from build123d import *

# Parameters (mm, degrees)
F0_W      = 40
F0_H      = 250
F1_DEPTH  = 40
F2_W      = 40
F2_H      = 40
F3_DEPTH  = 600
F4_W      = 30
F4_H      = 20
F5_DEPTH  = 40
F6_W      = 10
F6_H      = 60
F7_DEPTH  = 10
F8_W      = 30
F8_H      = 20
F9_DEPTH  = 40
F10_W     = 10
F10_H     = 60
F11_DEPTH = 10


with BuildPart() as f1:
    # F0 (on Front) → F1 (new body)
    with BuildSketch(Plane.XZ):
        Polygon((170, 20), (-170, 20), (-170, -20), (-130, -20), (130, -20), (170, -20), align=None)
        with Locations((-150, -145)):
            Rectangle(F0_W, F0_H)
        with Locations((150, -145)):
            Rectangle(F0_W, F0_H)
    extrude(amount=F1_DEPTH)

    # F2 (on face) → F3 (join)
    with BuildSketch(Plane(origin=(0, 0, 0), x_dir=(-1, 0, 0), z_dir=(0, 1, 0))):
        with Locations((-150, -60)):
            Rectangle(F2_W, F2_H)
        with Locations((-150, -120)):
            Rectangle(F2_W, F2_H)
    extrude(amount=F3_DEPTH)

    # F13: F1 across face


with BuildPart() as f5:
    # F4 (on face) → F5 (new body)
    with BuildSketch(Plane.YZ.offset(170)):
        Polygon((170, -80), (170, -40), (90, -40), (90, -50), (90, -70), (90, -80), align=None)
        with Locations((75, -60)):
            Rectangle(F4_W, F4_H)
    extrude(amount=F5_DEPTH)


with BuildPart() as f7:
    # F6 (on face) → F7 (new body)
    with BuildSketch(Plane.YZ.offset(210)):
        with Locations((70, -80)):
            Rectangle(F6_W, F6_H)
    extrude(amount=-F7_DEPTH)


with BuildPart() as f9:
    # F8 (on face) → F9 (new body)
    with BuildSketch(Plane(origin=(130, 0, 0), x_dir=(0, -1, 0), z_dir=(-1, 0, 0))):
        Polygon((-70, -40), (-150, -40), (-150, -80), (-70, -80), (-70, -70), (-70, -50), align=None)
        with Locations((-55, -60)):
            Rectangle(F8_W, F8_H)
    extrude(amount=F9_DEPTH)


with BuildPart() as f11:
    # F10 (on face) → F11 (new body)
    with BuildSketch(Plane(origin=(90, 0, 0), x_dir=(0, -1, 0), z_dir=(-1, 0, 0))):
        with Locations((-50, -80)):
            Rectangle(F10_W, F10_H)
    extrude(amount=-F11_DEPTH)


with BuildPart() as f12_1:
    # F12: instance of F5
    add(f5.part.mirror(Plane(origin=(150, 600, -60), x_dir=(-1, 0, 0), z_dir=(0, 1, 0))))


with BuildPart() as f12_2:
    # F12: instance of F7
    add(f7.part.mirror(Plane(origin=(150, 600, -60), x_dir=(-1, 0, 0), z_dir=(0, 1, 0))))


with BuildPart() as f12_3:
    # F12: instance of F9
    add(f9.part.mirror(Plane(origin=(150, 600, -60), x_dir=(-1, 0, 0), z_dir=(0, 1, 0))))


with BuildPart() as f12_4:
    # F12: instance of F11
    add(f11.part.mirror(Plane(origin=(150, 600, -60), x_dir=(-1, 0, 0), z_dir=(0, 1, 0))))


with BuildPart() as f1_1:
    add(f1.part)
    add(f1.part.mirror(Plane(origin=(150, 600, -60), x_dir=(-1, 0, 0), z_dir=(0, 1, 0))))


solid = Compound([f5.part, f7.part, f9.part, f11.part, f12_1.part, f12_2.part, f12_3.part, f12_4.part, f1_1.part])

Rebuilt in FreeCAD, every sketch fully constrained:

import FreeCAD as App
import Part
import Sketcher
from FreeCAD import Vector
Q = App.Units.Quantity

doc = App.newDocument("Part")
body = doc.addObject("PartDesign::Body", "Body")

sketch1 = body.newObject("Sketcher::SketchObject", "Sketch")
sketch1.AttachmentSupport = (doc.getObject("XZ_Plane"), [""])
sketch1.MapMode = "FlatFace"
sketch1.addGeometry([
    Part.LineSegment(Vector(170, 20, 0), Vector(-170, 20, 0)),
    Part.LineSegment(Vector(-170, 20, 0), Vector(-170, -270, 0)),
    Part.LineSegment(Vector(-170, -270, 0), Vector(-130, -270, 0)),
    Part.LineSegment(Vector(-130, -270, 0), Vector(-130, -20, 0)),
    Part.LineSegment(Vector(-130, -20, 0), Vector(130, -20, 0)),
    Part.LineSegment(Vector(130, -20, 0), Vector(130, -270, 0)),
    Part.LineSegment(Vector(130, -270, 0), Vector(170, -270, 0)),
    Part.LineSegment(Vector(170, -270, 0), Vector(170, 20, 0)),
], False)
sketch1.addConstraint([
    Sketcher.Constraint("Coincident", 0, 2, 1, 1),
    Sketcher.Constraint("Coincident", 1, 2, 2, 1),
    Sketcher.Constraint("Coincident", 2, 2, 3, 1),
    Sketcher.Constraint("Coincident", 3, 2, 4, 1),
    Sketcher.Constraint("Coincident", 4, 2, 5, 1),
    Sketcher.Constraint("Coincident", 5, 2, 6, 1),
    Sketcher.Constraint("Coincident", 6, 2, 7, 1),
    Sketcher.Constraint("Coincident", 7, 2, 0, 1),
    Sketcher.Constraint("Horizontal", 0),
    Sketcher.Constraint("Vertical", 1),
    Sketcher.Constraint("Horizontal", 2),
    Sketcher.Constraint("Vertical", 3),
    Sketcher.Constraint("Horizontal", 4),
    Sketcher.Constraint("Vertical", 5),
    Sketcher.Constraint("Horizontal", 6),
    Sketcher.Constraint("Vertical", 7),
    Sketcher.Constraint("Symmetric", 2, 2, 5, 2, -2),
    Sketcher.Constraint("Equal", 2, 6),
    Sketcher.Constraint("DistanceX", 0, 2, 0, 1, Q("340 mm")),
    Sketcher.Constraint("DistanceX", 2, 1, 2, 2, Q("40 mm")),
    Sketcher.Constraint("DistanceY", 1, 2, 1, 1, Q("290 mm")),
    Sketcher.Constraint("DistanceY", 3, 1, 3, 2, Q("250 mm")),
    Sketcher.Constraint("DistanceY", -1, 1, 0, 2, Q("20 mm")),
])
pad1 = body.newObject("PartDesign::Pad", "Pad")
pad1.Profile = sketch1
pad1.Length = 40

sketch2 = body.newObject("Sketcher::SketchObject", "Sketch001")
sketch2.AttachmentSupport = (doc.getObject("XZ_Plane"), [""])
sketch2.MapMode = "FlatFace"
sketch2.addGeometry([
    Part.LineSegment(Vector(170, -40, 0), Vector(170, -80, 0)),
    Part.LineSegment(Vector(170, -80, 0), Vector(130, -80, 0)),
    Part.LineSegment(Vector(130, -80, 0), Vector(130, -40, 0)),
    Part.LineSegment(Vector(130, -40, 0), Vector(170, -40, 0)),
    Part.LineSegment(Vector(170, -100, 0), Vector(170, -140, 0)),
    Part.LineSegment(Vector(170, -140, 0), Vector(130, -140, 0)),
    Part.LineSegment(Vector(130, -140, 0), Vector(130, -100, 0)),
    Part.LineSegment(Vector(130, -100, 0), Vector(170, -100, 0)),
], False)
sketch2.addConstraint([
    Sketcher.Constraint("Coincident", 0, 2, 1, 1),
    Sketcher.Constraint("Coincident", 1, 2, 2, 1),
    Sketcher.Constraint("Coincident", 2, 2, 3, 1),
    Sketcher.Constraint("Coincident", 3, 2, 0, 1),
    Sketcher.Constraint("Coincident", 4, 2, 5, 1),
    Sketcher.Constraint("Coincident", 5, 2, 6, 1),
    Sketcher.Constraint("Coincident", 6, 2, 7, 1),
    Sketcher.Constraint("Coincident", 7, 2, 4, 1),
    Sketcher.Constraint("Vertical", 0),
    Sketcher.Constraint("Horizontal", 1),
    Sketcher.Constraint("Vertical", 2),
    Sketcher.Constraint("Horizontal", 3),
    Sketcher.Constraint("Vertical", 4),
    Sketcher.Constraint("Horizontal", 5),
    Sketcher.Constraint("Vertical", 6),
    Sketcher.Constraint("Horizontal", 7),
    Sketcher.Constraint("Vertical", 3, 2, 4, 2),
    Sketcher.Constraint("Vertical", 2, 2, 5, 2),
    Sketcher.Constraint("Equal", 7, 0),
    Sketcher.Constraint("Equal", 2, 4),
    Sketcher.Constraint("DistanceX", 1, 2, 1, 1, Q("40 mm")),
    Sketcher.Constraint("DistanceX", -1, 1, 0, 2, Q("170 mm")),
    Sketcher.Constraint("DistanceY", 0, 2, -1, 1, Q("80 mm")),
    Sketcher.Constraint("DistanceY", 4, 2, -1, 1, Q("140 mm")),
])
pad2 = body.newObject("PartDesign::Pad", "Pad001")
pad2.Profile = sketch2
pad2.Length = 600
pad2.Reversed = True
body2 = doc.addObject("PartDesign::Body", "Body001")

sketch3 = body2.newObject("Sketcher::SketchObject", "Sketch002")
sketch3.AttachmentSupport = (doc.getObject("YZ_Plane001"), [""])
sketch3.MapMode = "FlatFace"
sketch3.AttachmentOffset = App.Placement(Vector(0, 0, 170), App.Rotation())
sketch3.addGeometry([
    Part.LineSegment(Vector(170, -80, 0), Vector(170, -40, 0)),
    Part.LineSegment(Vector(170, -40, 0), Vector(90, -40, 0)),
    Part.LineSegment(Vector(90, -40, 0), Vector(90, -50, 0)),
    Part.LineSegment(Vector(90, -50, 0), Vector(60, -50, 0)),
    Part.LineSegment(Vector(60, -50, 0), Vector(60, -70, 0)),
    Part.LineSegment(Vector(60, -70, 0), Vector(90, -70, 0)),
    Part.LineSegment(Vector(90, -70, 0), Vector(90, -80, 0)),
    Part.LineSegment(Vector(90, -80, 0), Vector(170, -80, 0)),
], False)
sketch3.addConstraint([
    Sketcher.Constraint("Coincident", 0, 2, 1, 1),
    Sketcher.Constraint("Coincident", 1, 2, 2, 1),
    Sketcher.Constraint("Coincident", 2, 2, 3, 1),
    Sketcher.Constraint("Coincident", 3, 2, 4, 1),
    Sketcher.Constraint("Coincident", 4, 2, 5, 1),
    Sketcher.Constraint("Coincident", 5, 2, 6, 1),
    Sketcher.Constraint("Coincident", 6, 2, 7, 1),
    Sketcher.Constraint("Coincident", 7, 2, 0, 1),
    Sketcher.Constraint("Vertical", 0),
    Sketcher.Constraint("Horizontal", 1),
    Sketcher.Constraint("Vertical", 2),
    Sketcher.Constraint("Horizontal", 3),
    Sketcher.Constraint("Vertical", 4),
    Sketcher.Constraint("Horizontal", 5),
    Sketcher.Constraint("Vertical", 6),
    Sketcher.Constraint("Horizontal", 7),
    Sketcher.Constraint("Vertical", 2, 2, 5, 2),
    Sketcher.Constraint("Equal", 2, 6),
    Sketcher.Constraint("DistanceX", 1, 2, 1, 1, Q("80 mm")),
    Sketcher.Constraint("DistanceX", 3, 2, 3, 1, Q("30 mm")),
    Sketcher.Constraint("DistanceY", 0, 1, 0, 2, Q("40 mm")),
    Sketcher.Constraint("DistanceY", 2, 2, 2, 1, Q("10 mm")),
    Sketcher.Constraint("DistanceX", -1, 1, 0, 2, Q("170 mm")),
    Sketcher.Constraint("DistanceY", 0, 2, -1, 1, Q("40 mm")),
])
pad3 = body2.newObject("PartDesign::Pad", "Pad002")
pad3.Profile = sketch3
pad3.Length = 40
body3 = doc.addObject("PartDesign::Body", "Body002")

sketch4 = body3.newObject("Sketcher::SketchObject", "Sketch003")
sketch4.AttachmentSupport = (doc.getObject("YZ_Plane002"), [""])
sketch4.MapMode = "FlatFace"
sketch4.AttachmentOffset = App.Placement(Vector(0, 0, 210), App.Rotation())
sketch4.addGeometry([
    Part.LineSegment(Vector(65, -50, 0), Vector(65, -110, 0)),
    Part.LineSegment(Vector(65, -110, 0), Vector(75, -110, 0)),
    Part.LineSegment(Vector(75, -110, 0), Vector(75, -50, 0)),
    Part.LineSegment(Vector(75, -50, 0), Vector(65, -50, 0)),
], False)
sketch4.addConstraint([
    Sketcher.Constraint("Coincident", 0, 2, 1, 1),
    Sketcher.Constraint("Coincident", 1, 2, 2, 1),
    Sketcher.Constraint("Coincident", 2, 2, 3, 1),
    Sketcher.Constraint("Coincident", 3, 2, 0, 1),
    Sketcher.Constraint("Vertical", 0),
    Sketcher.Constraint("Horizontal", 1),
    Sketcher.Constraint("Vertical", 2),
    Sketcher.Constraint("Horizontal", 3),
    Sketcher.Constraint("DistanceX", 1, 1, 1, 2, Q("10 mm")),
    Sketcher.Constraint("DistanceY", 0, 2, 0, 1, Q("60 mm")),
    Sketcher.Constraint("DistanceX", -1, 1, 0, 2, Q("65 mm")),
    Sketcher.Constraint("DistanceY", 0, 2, -1, 1, Q("110 mm")),
])
pad4 = body3.newObject("PartDesign::Pad", "Pad003")
pad4.Profile = sketch4
pad4.Length = 10
pad4.Reversed = True
body4 = doc.addObject("PartDesign::Body", "Body003")

sketch5 = body4.newObject("Sketcher::SketchObject", "Sketch004")
sketch5.AttachmentSupport = (doc.getObject("YZ_Plane003"), [""])
sketch5.MapMode = "FlatFace"
sketch5.AttachmentOffset = App.Placement(Vector(0, 0, 130), App.Rotation())
sketch5.addGeometry([
    Part.LineSegment(Vector(70, -40, 0), Vector(150, -40, 0)),
    Part.LineSegment(Vector(150, -40, 0), Vector(150, -80, 0)),
    Part.LineSegment(Vector(150, -80, 0), Vector(70, -80, 0)),
    Part.LineSegment(Vector(70, -80, 0), Vector(70, -70, 0)),
    Part.LineSegment(Vector(70, -70, 0), Vector(40, -70, 0)),
    Part.LineSegment(Vector(40, -70, 0), Vector(40, -50, 0)),
    Part.LineSegment(Vector(40, -50, 0), Vector(70, -50, 0)),
    Part.LineSegment(Vector(70, -50, 0), Vector(70, -40, 0)),
], False)
sketch5.addConstraint([
    Sketcher.Constraint("Coincident", 0, 2, 1, 1),
    Sketcher.Constraint("Coincident", 1, 2, 2, 1),
    Sketcher.Constraint("Coincident", 2, 2, 3, 1),
    Sketcher.Constraint("Coincident", 3, 2, 4, 1),
    Sketcher.Constraint("Coincident", 4, 2, 5, 1),
    Sketcher.Constraint("Coincident", 5, 2, 6, 1),
    Sketcher.Constraint("Coincident", 6, 2, 7, 1),
    Sketcher.Constraint("Coincident", 7, 2, 0, 1),
    Sketcher.Constraint("Horizontal", 0),
    Sketcher.Constraint("Vertical", 1),
    Sketcher.Constraint("Horizontal", 2),
    Sketcher.Constraint("Vertical", 3),
    Sketcher.Constraint("Horizontal", 4),
    Sketcher.Constraint("Vertical", 5),
    Sketcher.Constraint("Horizontal", 6),
    Sketcher.Constraint("Vertical", 7),
    Sketcher.Constraint("Vertical", 3, 2, 6, 2),
    Sketcher.Constraint("Equal", 3, 7),
    Sketcher.Constraint("DistanceX", 0, 1, 0, 2, Q("80 mm")),
    Sketcher.Constraint("DistanceX", 4, 2, 4, 1, Q("30 mm")),
    Sketcher.Constraint("DistanceY", 1, 2, 1, 1, Q("40 mm")),
    Sketcher.Constraint("DistanceY", 3, 1, 3, 2, Q("10 mm")),
    Sketcher.Constraint("DistanceX", -1, 1, 0, 2, Q("150 mm")),
    Sketcher.Constraint("DistanceY", 0, 2, -1, 1, Q("40 mm")),
])
pad5 = body4.newObject("PartDesign::Pad", "Pad004")
pad5.Profile = sketch5
pad5.Length = 40
pad5.Reversed = True
body5 = doc.addObject("PartDesign::Body", "Body004")

sketch6 = body5.newObject("Sketcher::SketchObject", "Sketch005")
sketch6.AttachmentSupport = (doc.getObject("YZ_Plane004"), [""])
sketch6.MapMode = "FlatFace"
sketch6.AttachmentOffset = App.Placement(Vector(0, 0, 90), App.Rotation())
sketch6.addGeometry([
    Part.LineSegment(Vector(55, -50, 0), Vector(55, -110, 0)),
    Part.LineSegment(Vector(55, -110, 0), Vector(45, -110, 0)),
    Part.LineSegment(Vector(45, -110, 0), Vector(45, -50, 0)),
    Part.LineSegment(Vector(45, -50, 0), Vector(55, -50, 0)),
], False)
sketch6.addConstraint([
    Sketcher.Constraint("Coincident", 0, 2, 1, 1),
    Sketcher.Constraint("Coincident", 1, 2, 2, 1),
    Sketcher.Constraint("Coincident", 2, 2, 3, 1),
    Sketcher.Constraint("Coincident", 3, 2, 0, 1),
    Sketcher.Constraint("Vertical", 0),
    Sketcher.Constraint("Horizontal", 1),
    Sketcher.Constraint("Vertical", 2),
    Sketcher.Constraint("Horizontal", 3),
    Sketcher.Constraint("DistanceX", 1, 2, 1, 1, Q("10 mm")),
    Sketcher.Constraint("DistanceY", 0, 2, 0, 1, Q("60 mm")),
    Sketcher.Constraint("DistanceX", -1, 1, 0, 2, Q("55 mm")),
    Sketcher.Constraint("DistanceY", 0, 2, -1, 1, Q("110 mm")),
])
pad6 = body5.newObject("PartDesign::Pad", "Pad005")
pad6.Profile = sketch6
pad6.Length = 10
body6 = doc.addObject("PartDesign::Body", "Body005")
doc.recompute()

mirroring = doc.addObject("Part::Mirroring", "Mirroring")
mirroring.Source = body2
mirroring.Base = Vector(150, 600, -60)
mirroring.Normal = Vector(0, 1, 0)
body6.BaseFeature = mirroring
doc.recompute()
body7 = doc.addObject("PartDesign::Body", "Body006")
doc.recompute()

mirroring2 = doc.addObject("Part::Mirroring", "Mirroring001")
mirroring2.Source = body3
mirroring2.Base = Vector(150, 600, -60)
mirroring2.Normal = Vector(0, 1, 0)
body7.BaseFeature = mirroring2
doc.recompute()
body8 = doc.addObject("PartDesign::Body", "Body007")
doc.recompute()

mirroring3 = doc.addObject("Part::Mirroring", "Mirroring002")
mirroring3.Source = body4
mirroring3.Base = Vector(150, 600, -60)
mirroring3.Normal = Vector(0, 1, 0)
body8.BaseFeature = mirroring3
doc.recompute()
body9 = doc.addObject("PartDesign::Body", "Body008")
doc.recompute()

mirroring4 = doc.addObject("Part::Mirroring", "Mirroring003")
mirroring4.Source = body5
mirroring4.Base = Vector(150, 600, -60)
mirroring4.Normal = Vector(0, 1, 0)
body9.BaseFeature = mirroring4
doc.recompute()
body10 = doc.addObject("PartDesign::Body", "Body009")
doc.recompute()

body10.BaseFeature = body
doc.recompute()

mirroring5 = doc.addObject("Part::Mirroring", "Mirroring004")
mirroring5.Source = body
mirroring5.Base = Vector(150, 600, -60)
mirroring5.Normal = Vector(0, 1, 0)
body11 = doc.addObject("PartDesign::Body", "Body010")
body11.BaseFeature = mirroring5
boolean = body10.newObject("PartDesign::Boolean", "Boolean")
boolean.Type = "Fuse"
boolean.addObjects([body11])
doc.recompute()
mirroring.Visibility = False
mirroring2.Visibility = False
mirroring3.Visibility = False
mirroring4.Visibility = False
mirroring5.Visibility = False

doc.recompute()
